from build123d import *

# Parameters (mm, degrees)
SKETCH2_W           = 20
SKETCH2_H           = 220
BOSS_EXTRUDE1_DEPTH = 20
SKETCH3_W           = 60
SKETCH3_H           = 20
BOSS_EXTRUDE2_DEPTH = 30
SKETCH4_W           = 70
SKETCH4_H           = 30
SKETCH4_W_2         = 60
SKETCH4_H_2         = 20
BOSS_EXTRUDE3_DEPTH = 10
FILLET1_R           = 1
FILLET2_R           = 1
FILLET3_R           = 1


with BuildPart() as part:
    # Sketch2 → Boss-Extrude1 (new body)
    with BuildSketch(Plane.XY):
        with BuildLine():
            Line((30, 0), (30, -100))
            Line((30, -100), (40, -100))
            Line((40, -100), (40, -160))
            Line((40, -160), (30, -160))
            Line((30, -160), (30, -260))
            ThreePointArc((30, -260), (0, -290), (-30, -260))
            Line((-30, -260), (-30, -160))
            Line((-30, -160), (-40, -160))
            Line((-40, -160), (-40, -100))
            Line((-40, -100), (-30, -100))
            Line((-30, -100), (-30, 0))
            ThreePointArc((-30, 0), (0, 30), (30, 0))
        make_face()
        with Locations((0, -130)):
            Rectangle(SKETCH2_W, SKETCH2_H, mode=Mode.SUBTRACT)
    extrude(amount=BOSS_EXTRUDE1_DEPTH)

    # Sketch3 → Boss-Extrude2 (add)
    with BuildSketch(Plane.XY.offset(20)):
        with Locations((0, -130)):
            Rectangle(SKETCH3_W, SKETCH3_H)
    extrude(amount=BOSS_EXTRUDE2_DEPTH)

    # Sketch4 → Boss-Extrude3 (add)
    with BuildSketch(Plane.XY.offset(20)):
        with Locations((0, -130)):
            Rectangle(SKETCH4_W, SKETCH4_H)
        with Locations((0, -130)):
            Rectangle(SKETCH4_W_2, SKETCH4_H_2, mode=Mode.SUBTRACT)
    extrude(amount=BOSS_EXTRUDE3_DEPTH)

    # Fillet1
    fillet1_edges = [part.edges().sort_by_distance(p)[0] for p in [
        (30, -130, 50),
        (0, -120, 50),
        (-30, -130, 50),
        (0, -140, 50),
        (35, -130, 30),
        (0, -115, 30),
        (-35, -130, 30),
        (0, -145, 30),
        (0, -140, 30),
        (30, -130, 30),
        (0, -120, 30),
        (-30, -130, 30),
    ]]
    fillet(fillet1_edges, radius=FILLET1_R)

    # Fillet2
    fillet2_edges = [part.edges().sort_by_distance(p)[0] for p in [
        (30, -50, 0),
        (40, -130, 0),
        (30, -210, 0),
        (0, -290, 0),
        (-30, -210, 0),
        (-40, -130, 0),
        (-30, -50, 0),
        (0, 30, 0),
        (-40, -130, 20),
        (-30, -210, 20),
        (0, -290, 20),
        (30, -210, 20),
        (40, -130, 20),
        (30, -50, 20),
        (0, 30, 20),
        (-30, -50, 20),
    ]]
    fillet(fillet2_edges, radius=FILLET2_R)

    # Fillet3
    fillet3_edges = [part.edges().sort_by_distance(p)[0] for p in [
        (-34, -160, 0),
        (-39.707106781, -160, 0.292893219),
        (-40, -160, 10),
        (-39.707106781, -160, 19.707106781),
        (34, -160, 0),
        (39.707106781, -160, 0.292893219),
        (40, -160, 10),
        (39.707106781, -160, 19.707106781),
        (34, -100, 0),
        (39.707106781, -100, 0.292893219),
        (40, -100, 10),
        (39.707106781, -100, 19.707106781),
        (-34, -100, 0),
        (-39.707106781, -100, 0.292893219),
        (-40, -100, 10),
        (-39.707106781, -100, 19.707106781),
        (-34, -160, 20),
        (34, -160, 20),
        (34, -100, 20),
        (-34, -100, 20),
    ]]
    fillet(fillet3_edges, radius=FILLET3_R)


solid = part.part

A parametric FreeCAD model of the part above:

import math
import FreeCAD as App
import Part
import Sketcher
from FreeCAD import Vector


def edges_at(feature, points):
    """Names of the edges that pass closest to the given points."""
    edges = feature.Shape.Edges
    near = lambda p: min(range(len(edges)), key=lambda i: edges[i].distToShape(Part.Vertex(*p))[0])
    return sorted({f"Edge{near(p) + 1}" for p in points})

doc = App.newDocument("Part")
body = doc.addObject("PartDesign::Body", "Body")

# Sketch on XY plane
sketch1 = body.newObject("Sketcher::SketchObject", "Sketch")
sketch1.AttachmentSupport = (doc.getObject("XY_Plane"), [""])
sketch1.MapMode = "FlatFace"
sketch1.addGeometry(Part.LineSegment(Vector(30, -100, 0), Vector(30, 0, 0)), False)
sketch1.addGeometry(Part.ArcOfCircle(Part.Circle(Vector(0, 0, 0), Vector(0, 0, 1), 30), math.radians(0), math.radians(180)), False)
sketch1.addGeometry(Part.LineSegment(Vector(-30, 0, 0), Vector(-30, -100, 0)), False)
sketch1.addGeometry(Part.LineSegment(Vector(-30, -100, 0), Vector(-40, -100, 0)), False)
sketch1.addGeometry(Part.LineSegment(Vector(-40, -100, 0), Vector(-40, -160, 0)), False)
sketch1.addGeometry(Part.LineSegment(Vector(-40, -160, 0), Vector(-30, -160, 0)), False)
sketch1.addGeometry(Part.LineSegment(Vector(-30, -160, 0), Vector(-30, -260, 0)), False)
sketch1.addGeometry(Part.ArcOfCircle(Part.Circle(Vector(0, -260, 0), Vector(0, 0, 1), 30), math.radians(180), math.radians(360)), False)
sketch1.addGeometry(Part.LineSegment(Vector(30, -260, 0), Vector(30, -160, 0)), False)
sketch1.addGeometry(Part.LineSegment(Vector(30, -160, 0), Vector(40, -160, 0)), False)
sketch1.addGeometry(Part.LineSegment(Vector(40, -160, 0), Vector(40, -100, 0)), False)
sketch1.addGeometry(Part.LineSegment(Vector(40, -100, 0), Vector(30, -100, 0)), False)
sketch1.addGeometry(Part.LineSegment(Vector(-10, -240, 0), Vector(-10, -20, 0)), False)
sketch1.addGeometry(Part.LineSegment(Vector(-10, -20, 0), Vector(10, -20, 0)), False)
sketch1.addGeometry(Part.LineSegment(Vector(10, -20, 0), Vector(10, -240, 0)), False)
sketch1.addGeometry(Part.LineSegment(Vector(10, -240, 0), Vector(-10, -240, 0)), False)
sketch1.addConstraint(Sketcher.Constraint("Tangent", 0, 2, 1, 1))
sketch1.addConstraint(Sketcher.Constraint("Tangent", 1, 2, 2, 1))
sketch1.addConstraint(Sketcher.Constraint("Coincident", 2, 2, 3, 1))
sketch1.addConstraint(Sketcher.Constraint("Coincident", 3, 2, 4, 1))
sketch1.addConstraint(Sketcher.Constraint("Coincident", 4, 2, 5, 1))
sketch1.addConstraint(Sketcher.Constraint("Coincident", 5, 2, 6, 1))
sketch1.addConstraint(Sketcher.Constraint("Tangent", 6, 2, 7, 1))
sketch1.addConstraint(Sketcher.Constraint("Tangent", 7, 2, 8, 1))
sketch1.addConstraint(Sketcher.Constraint("Coincident", 8, 2, 9, 1))
sketch1.addConstraint(Sketcher.Constraint("Coincident", 9, 2, 10, 1))
sketch1.addConstraint(Sketcher.Constraint("Coincident", 10, 2, 11, 1))
sketch1.addConstraint(Sketcher.Constraint("Coincident", 11, 2, 0, 1))
sketch1.addConstraint(Sketcher.Constraint("Coincident", 12, 2, 13, 1))
sketch1.addConstraint(Sketcher.Constraint("Coincident", 13, 2, 14, 1))
sketch1.addConstraint(Sketcher.Constraint("Coincident", 14, 2, 15, 1))
sketch1.addConstraint(Sketcher.Constraint("Coincident", 15, 2, 12, 1))
sketch1.addConstraint(Sketcher.Constraint("Vertical", 0))
sketch1.addConstraint(Sketcher.Constraint("Vertical", 2))
sketch1.addConstraint(Sketcher.Constraint("Horizontal", 3))
sketch1.addConstraint(Sketcher.Constraint("Vertical", 4))
sketch1.addConstraint(Sketcher.Constraint("Horizontal", 5))
sketch1.addConstraint(Sketcher.Constraint("Vertical", 6))
sketch1.addConstraint(Sketcher.Constraint("Vertical", 8))
sketch1.addConstraint(Sketcher.Constraint("Horizontal", 9))
sketch1.addConstraint(Sketcher.Constraint("Vertical", 10))
sketch1.addConstraint(Sketcher.Constraint("Horizontal", 11))
sketch1.addConstraint(Sketcher.Constraint("Vertical", 12))
sketch1.addConstraint(Sketcher.Constraint("Horizontal", 13))
sketch1.addConstraint(Sketcher.Constraint("Vertical", 14))
sketch1.addConstraint(Sketcher.Constraint("Horizontal", 15))
sketch1.addConstraint(Sketcher.Constraint("Coincident", 1, 3, -1, 1))
sketch1.addConstraint(Sketcher.Constraint("Equal", 1, 7))
sketch1.addConstraint(Sketcher.Constraint("Symmetric", 5, 2, 8, 2, -2))
sketch1.addConstraint(Sketcher.Constraint("Symmetric", 3, 2, 10, 2, -2))
sketch1.addConstraint(Sketcher.Constraint("Equal", 2, 6))
sketch1.addConstraint(Sketcher.Constraint("Radius", 1, 30.0))
sketch1.addConstraint(Sketcher.Constraint("DistanceX", 3, 2, 3, 1, 10.0))
sketch1.addConstraint(Sketcher.Constraint("DistanceX", 13, 1, 13, 2, 20.0))
sketch1.addConstraint(Sketcher.Constraint("DistanceY", 0, 1, 0, 2, 100.0))
sketch1.addConstraint(Sketcher.Constraint("DistanceY", 4, 2, 4, 1, 60.0))
sketch1.addConstraint(Sketcher.Constraint("DistanceY", 12, 1, 12, 2, 220.0))
sketch1.addConstraint(Sketcher.Constraint("DistanceX", 12, 2, -1, 1, 10.0))
sketch1.addConstraint(Sketcher.Constraint("DistanceY", 12, 2, -1, 1, 20.0))
pad1 = body.newObject("PartDesign::Pad", "Pad")
pad1.Profile = sketch1
pad1.Length = 20

# Sketch on XY plane
sketch2 = body.newObject("Sketcher::SketchObject", "Sketch001")
sketch2.AttachmentSupport = (doc.getObject("XY_Plane"), [""])
sketch2.MapMode = "FlatFace"
sketch2.AttachmentOffset = App.Placement(Vector(0, 0, 20), App.Rotation())
sketch2.addGeometry(Part.LineSegment(Vector(-30, -120, 0), Vector(-30, -140, 0)), False)
sketch2.addGeometry(Part.LineSegment(Vector(-30, -140, 0), Vector(30, -140, 0)), False)
sketch2.addGeometry(Part.LineSegment(Vector(30, -140, 0), Vector(30, -120, 0)), False)
sketch2.addGeometry(Part.LineSegment(Vector(30, -120, 0), Vector(-30, -120, 0)), False)
sketch2.addConstraint(Sketcher.Constraint("Coincident", 0, 2, 1, 1))
sketch2.addConstraint(Sketcher.Constraint("Coincident", 1, 2, 2, 1))
sketch2.addConstraint(Sketcher.Constraint("Coincident", 2, 2, 3, 1))
sketch2.addConstraint(Sketcher.Constraint("Coincident", 3, 2, 0, 1))
sketch2.addConstraint(Sketcher.Constraint("Vertical", 0))
sketch2.addConstraint(Sketcher.Constraint("Horizontal", 1))
sketch2.addConstraint(Sketcher.Constraint("Vertical", 2))
sketch2.addConstraint(Sketcher.Constraint("Horizontal", 3))
sketch2.addConstraint(Sketcher.Constraint("DistanceX", 1, 1, 1, 2, 60.0))
sketch2.addConstraint(Sketcher.Constraint("DistanceY", 0, 2, 0, 1, 20.0))
sketch2.addConstraint(Sketcher.Constraint("DistanceX", 0, 2, -1, 1, 30.0))
sketch2.addConstraint(Sketcher.Constraint("DistanceY", 0, 2, -1, 1, 140.0))
pad2 = body.newObject("PartDesign::Pad", "Pad001")
pad2.Profile = sketch2
pad2.Length = 30

# Sketch on XY plane
sketch3 = body.newObject("Sketcher::SketchObject", "Sketch002")
sketch3.AttachmentSupport = (doc.getObject("XY_Plane"), [""])
sketch3.MapMode = "FlatFace"
sketch3.AttachmentOffset = App.Placement(Vector(0, 0, 20), App.Rotation())
sketch3.addGeometry(Part.LineSegment(Vector(-35, -115, 0), Vector(-35, -145, 0)), False)
sketch3.addGeometry(Part.LineSegment(Vector(-35, -145, 0), Vector(35, -145, 0)), False)
sketch3.addGeometry(Part.LineSegment(Vector(35, -145, 0), Vector(35, -115, 0)), False)
sketch3.addGeometry(Part.LineSegment(Vector(35, -115, 0), Vector(-35, -115, 0)), False)
sketch3.addGeometry(Part.LineSegment(Vector(30, -140, 0), Vector(-30, -140, 0)), False)
sketch3.addGeometry(Part.LineSegment(Vector(-30, -140, 0), Vector(-30, -120, 0)), False)
sketch3.addGeometry(Part.LineSegment(Vector(-30, -120, 0), Vector(30, -120, 0)), False)
sketch3.addGeometry(Part.LineSegment(Vector(30, -120, 0), Vector(30, -140, 0)), False)
sketch3.addConstraint(Sketcher.Constraint("Coincident", 0, 2, 1, 1))
sketch3.addConstraint(Sketcher.Constraint("Coincident", 1, 2, 2, 1))
sketch3.addConstraint(Sketcher.Constraint("Coincident", 2, 2, 3, 1))
sketch3.addConstraint(Sketcher.Constraint("Coincident", 3, 2, 0, 1))
sketch3.addConstraint(Sketcher.Constraint("Coincident", 4, 2, 5, 1))
sketch3.addConstraint(Sketcher.Constraint("Coincident", 5, 2, 6, 1))
sketch3.addConstraint(Sketcher.Constraint("Coincident", 6, 2, 7, 1))
sketch3.addConstraint(Sketcher.Constraint("Coincident", 7, 2, 4, 1))
sketch3.addConstraint(Sketcher.Constraint("Vertical", 0))
sketch3.addConstraint(Sketcher.Constraint("Horizontal", 1))
sketch3.addConstraint(Sketcher.Constraint("Vertical", 2))
sketch3.addConstraint(Sketcher.Constraint("Horizontal", 3))
sketch3.addConstraint(Sketcher.Constraint("Horizontal", 4))
sketch3.addConstraint(Sketcher.Constraint("Vertical", 5))
sketch3.addConstraint(Sketcher.Constraint("Horizontal", 6))
sketch3.addConstraint(Sketcher.Constraint("Vertical", 7))
sketch3.addConstraint(Sketcher.Constraint("DistanceX", 1, 1, 1, 2, 70.0))
sketch3.addConstraint(Sketcher.Constraint("DistanceX", 4, 2, 4, 1, 60.0))
sketch3.addConstraint(Sketcher.Constraint("DistanceY", 0, 2, 0, 1, 30.0))
sketch3.addConstraint(Sketcher.Constraint("DistanceY", 5, 1, 5, 2, 20.0))
sketch3.addConstraint(Sketcher.Constraint("DistanceX", 0, 2, -1, 1, 35.0))
sketch3.addConstraint(Sketcher.Constraint("DistanceY", 0, 2, -1, 1, 145.0))
sketch3.addConstraint(Sketcher.Constraint("DistanceX", 4, 2, -1, 1, 30.0))
sketch3.addConstraint(Sketcher.Constraint("DistanceY", 4, 2, -1, 1, 140.0))
pad3 = body.newObject("PartDesign::Pad", "Pad002")
pad3.Profile = sketch3
pad3.Length = 10
doc.recompute()

fillet = body.newObject("PartDesign::Fillet", "Fillet")
fillet.Base = (pad3, edges_at(pad3, [
    (30, -130, 50),
    (0, -120, 50),
    (-30, -130, 50),
    (0, -140, 50),
    (35, -130, 30),
    (0, -115, 30),
    (-35, -130, 30),
    (0, -145, 30),
    (0, -140, 30),
    (30, -130, 30),
    (0, -120, 30),
    (-30, -130, 30),
]))
fillet.Radius = 1
doc.recompute()

fillet2 = body.newObject("PartDesign::Fillet", "Fillet001")
fillet2.Base = (fillet, edges_at(fillet, [
    (30, -50, 0),
    (40, -130, 0),
    (30, -210, 0),
    (0, -290, 0),
    (-30, -210, 0),
    (-40, -130, 0),
    (-30, -50, 0),
    (0, 30, 0),
    (-40, -130, 20),
    (-30, -210, 20),
    (0, -290, 20),
    (30, -210, 20),
    (40, -130, 20),
    (30, -50, 20),
    (0, 30, 20),
    (-30, -50, 20),
]))
fillet2.Radius = 1
doc.recompute()

fillet3 = body.newObject("PartDesign::Fillet", "Fillet002")
fillet3.Base = (fillet2, edges_at(fillet2, [
    (-34, -160, 0),
    (-39.707, -160, 0.293),
    (-40, -160, 10),
    (-39.707, -160, 19.707),
    (34, -160, 0),
    (39.707, -160, 0.293),
    (40, -160, 10),
    (39.707, -160, 19.707),
    (34, -100, 0),
    (39.707, -100, 0.293),
    (40, -100, 10),
    (39.707, -100, 19.707),
    (-34, -100, 0),
    (-39.707, -100, 0.293),
    (-40, -100, 10),
    (-39.707, -100, 19.707),
    (-34, -160, 20),
    (34, -160, 20),
    (34, -100, 20),
    (-34, -100, 20),
]))
fillet3.Radius = 1

doc.recompute()
